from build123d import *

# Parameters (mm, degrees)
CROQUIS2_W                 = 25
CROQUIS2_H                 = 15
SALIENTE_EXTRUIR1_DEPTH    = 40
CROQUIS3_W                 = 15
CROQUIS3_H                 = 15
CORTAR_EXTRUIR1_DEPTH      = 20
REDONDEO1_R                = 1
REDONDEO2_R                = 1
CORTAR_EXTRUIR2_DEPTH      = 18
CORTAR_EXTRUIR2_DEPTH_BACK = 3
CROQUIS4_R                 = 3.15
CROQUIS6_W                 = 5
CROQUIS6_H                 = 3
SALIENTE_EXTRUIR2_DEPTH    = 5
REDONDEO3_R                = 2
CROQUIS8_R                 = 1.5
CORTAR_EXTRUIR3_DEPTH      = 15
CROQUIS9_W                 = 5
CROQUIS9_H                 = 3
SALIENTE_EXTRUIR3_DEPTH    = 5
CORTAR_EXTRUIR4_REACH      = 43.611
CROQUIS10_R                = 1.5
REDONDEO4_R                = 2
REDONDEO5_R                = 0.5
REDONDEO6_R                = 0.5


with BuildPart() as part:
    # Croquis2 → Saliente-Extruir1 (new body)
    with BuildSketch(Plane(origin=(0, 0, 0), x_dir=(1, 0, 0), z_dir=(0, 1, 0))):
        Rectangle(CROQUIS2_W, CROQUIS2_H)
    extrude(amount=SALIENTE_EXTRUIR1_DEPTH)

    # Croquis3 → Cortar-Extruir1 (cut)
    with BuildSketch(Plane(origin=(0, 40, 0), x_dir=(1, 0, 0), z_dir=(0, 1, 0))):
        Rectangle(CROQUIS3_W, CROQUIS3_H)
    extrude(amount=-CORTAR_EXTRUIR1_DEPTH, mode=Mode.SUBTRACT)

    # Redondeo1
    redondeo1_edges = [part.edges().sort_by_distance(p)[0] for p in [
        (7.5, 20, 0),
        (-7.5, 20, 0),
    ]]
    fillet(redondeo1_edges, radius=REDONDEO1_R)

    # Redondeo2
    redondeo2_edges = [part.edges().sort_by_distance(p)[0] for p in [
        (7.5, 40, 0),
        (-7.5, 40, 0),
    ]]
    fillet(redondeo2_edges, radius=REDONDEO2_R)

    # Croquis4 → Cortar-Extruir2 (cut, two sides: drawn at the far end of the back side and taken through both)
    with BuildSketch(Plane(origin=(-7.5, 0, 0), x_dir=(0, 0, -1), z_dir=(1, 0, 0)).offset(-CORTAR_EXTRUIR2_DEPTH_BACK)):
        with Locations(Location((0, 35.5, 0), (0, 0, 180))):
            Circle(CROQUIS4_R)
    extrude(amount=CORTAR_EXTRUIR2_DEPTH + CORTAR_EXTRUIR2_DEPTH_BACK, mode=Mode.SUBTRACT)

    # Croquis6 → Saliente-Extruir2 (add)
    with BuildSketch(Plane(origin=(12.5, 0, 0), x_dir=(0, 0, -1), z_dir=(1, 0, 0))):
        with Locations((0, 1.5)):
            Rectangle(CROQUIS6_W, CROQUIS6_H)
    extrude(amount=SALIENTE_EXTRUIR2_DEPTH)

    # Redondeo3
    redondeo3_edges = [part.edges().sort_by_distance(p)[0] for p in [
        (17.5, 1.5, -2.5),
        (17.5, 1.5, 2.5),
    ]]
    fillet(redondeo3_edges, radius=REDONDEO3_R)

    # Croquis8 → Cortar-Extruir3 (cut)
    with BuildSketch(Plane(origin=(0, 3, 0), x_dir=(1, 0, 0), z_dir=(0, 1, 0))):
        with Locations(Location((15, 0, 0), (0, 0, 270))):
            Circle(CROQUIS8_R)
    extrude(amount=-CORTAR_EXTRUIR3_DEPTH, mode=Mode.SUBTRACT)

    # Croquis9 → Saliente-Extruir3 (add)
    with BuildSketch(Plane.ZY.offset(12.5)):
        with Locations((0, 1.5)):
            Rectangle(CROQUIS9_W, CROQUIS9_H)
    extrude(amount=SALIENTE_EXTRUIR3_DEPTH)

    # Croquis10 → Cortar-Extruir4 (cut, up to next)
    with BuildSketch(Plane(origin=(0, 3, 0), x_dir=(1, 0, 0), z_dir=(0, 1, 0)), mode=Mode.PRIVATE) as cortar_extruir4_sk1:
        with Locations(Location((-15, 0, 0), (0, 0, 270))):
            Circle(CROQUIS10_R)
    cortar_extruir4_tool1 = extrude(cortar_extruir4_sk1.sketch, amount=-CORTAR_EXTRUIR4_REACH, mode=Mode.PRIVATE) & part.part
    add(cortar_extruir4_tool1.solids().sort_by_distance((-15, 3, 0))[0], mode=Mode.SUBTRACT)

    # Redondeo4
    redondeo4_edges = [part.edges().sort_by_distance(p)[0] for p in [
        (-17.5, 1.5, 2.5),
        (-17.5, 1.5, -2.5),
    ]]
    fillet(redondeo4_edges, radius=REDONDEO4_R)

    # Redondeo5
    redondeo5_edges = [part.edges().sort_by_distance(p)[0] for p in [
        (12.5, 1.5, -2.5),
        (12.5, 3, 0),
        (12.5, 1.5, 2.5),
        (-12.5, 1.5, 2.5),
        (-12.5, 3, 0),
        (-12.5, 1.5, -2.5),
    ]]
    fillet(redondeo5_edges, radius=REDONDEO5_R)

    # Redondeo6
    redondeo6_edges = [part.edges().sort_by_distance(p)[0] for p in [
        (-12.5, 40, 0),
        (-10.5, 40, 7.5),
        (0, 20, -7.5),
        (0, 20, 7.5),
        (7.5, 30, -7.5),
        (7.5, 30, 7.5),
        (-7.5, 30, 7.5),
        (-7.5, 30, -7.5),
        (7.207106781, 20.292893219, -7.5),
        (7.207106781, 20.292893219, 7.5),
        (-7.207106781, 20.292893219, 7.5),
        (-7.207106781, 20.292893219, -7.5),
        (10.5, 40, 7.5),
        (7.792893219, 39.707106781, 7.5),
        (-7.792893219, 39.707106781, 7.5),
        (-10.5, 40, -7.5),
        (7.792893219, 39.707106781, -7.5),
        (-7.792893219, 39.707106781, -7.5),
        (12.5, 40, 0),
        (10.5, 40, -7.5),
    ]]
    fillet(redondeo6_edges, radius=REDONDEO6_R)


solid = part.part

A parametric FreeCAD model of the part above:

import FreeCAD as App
import Part
import Sketcher


def edges_at(feature, points):
    """Names of the edges that pass closest to the given points."""
    edges = feature.Shape.Edges
    near = lambda p: min(range(len(edges)), key=lambda i: edges[i].distToShape(Part.Vertex(*p))[0])
    return sorted({f"Edge{near(p) + 1}" for p in points})


def add_polygon(sketch, points):
    """Adds a closed chain of lines whose ends are joined by coincident constraints."""
    first, n = sketch.GeometryCount, len(points)
    for a, b in zip(points, points[1:] + points[:1]):
        sketch.addGeometry(Part.LineSegment(App.Vector(*a, 0), App.Vector(*b, 0)), False)
    for i in range(n):
        sketch.addConstraint(Sketcher.Constraint("Coincident", first + i, 2, first + (i + 1) % n, 1))

doc = App.newDocument("Part")
body = doc.addObject("PartDesign::Body", "Body")

# Sketch on XZ plane
sketch1 = body.newObject("Sketcher::SketchObject", "Sketch")
sketch1.AttachmentSupport = (doc.getObject("XZ_Plane"), [""])
sketch1.MapMode = "FlatFace"
add_polygon(sketch1, [(-12, -8), (-12, 8), (12, 8), (12, -8)])  # lines 0-3
sketch1.addConstraint(Sketcher.Constraint("Vertical", 0))
sketch1.addConstraint(Sketcher.Constraint("Horizontal", 1))
sketch1.addConstraint(Sketcher.Constraint("Vertical", 2))
sketch1.addConstraint(Sketcher.Constraint("Horizontal", 3))
sketch1.addConstraint(Sketcher.Constraint("Symmetric", 0, 2, 2, 2, -1, 1))
sketch1.addConstraint(Sketcher.Constraint("DistanceX", 1, 1, 1, 2, 25.0))
sketch1.addConstraint(Sketcher.Constraint("DistanceY", 0, 1, 0, 2, 15.0))
pad1 = body.newObject("PartDesign::Pad", "Pad")
pad1.Profile = sketch1
pad1.Length = 40
pad1.Reversed = True

# Sketch on XZ plane
sketch2 = body.newObject("Sketcher::SketchObject", "Sketch001")
sketch2.AttachmentSupport = (doc.getObject("XZ_Plane"), [""])
sketch2.MapMode = "FlatFace"
sketch2.AttachmentOffset = App.Placement(App.Vector(0, 0, -40), App.Rotation())
add_polygon(sketch2, [(-8, -8), (-8, 8), (8, 8), (8, -8)])  # lines 0-3
sketch2.addConstraint(Sketcher.Constraint("Vertical", 0))
sketch2.addConstraint(Sketcher.Constraint("Horizontal", 1))
sketch2.addConstraint(Sketcher.Constraint("Vertical", 2))
sketch2.addConstraint(Sketcher.Constraint("Horizontal", 3))
sketch2.addConstraint(Sketcher.Constraint("Symmetric", 0, 2, 2, 2, -1, 1))
sketch2.addConstraint(Sketcher.Constraint("Equal", 3, 0))
sketch2.addConstraint(Sketcher.Constraint("DistanceX", 1, 1, 1, 2, 15.0))
pocket1 = body.newObject("PartDesign::Pocket", "Pocket")
pocket1.Profile = sketch2
pocket1.Length = 20
pocket1.Reversed = True
doc.recompute()

fillet = body.newObject("PartDesign::Fillet", "Fillet")
fillet.Base = (pocket1, edges_at(pocket1, [(7.5, 20, 0), (-7.5, 20, 0)]))
fillet.Radius = 1
doc.recompute()

fillet2 = body.newObject("PartDesign::Fillet", "Fillet001")
fillet2.Base = (fillet, edges_at(fillet, [(7.5, 40, 0), (-7.5, 40, 0)]))
fillet2.Radius = 1

# Sketch on YZ plane
sketch3 = body.newObject("Sketcher::SketchObject", "Sketch002")
sketch3.AttachmentSupport = (doc.getObject("YZ_Plane"), [""])
sketch3.MapMode = "FlatFace"
sketch3.AttachmentOffset = App.Placement(App.Vector(0, 0, -7.5), App.Rotation())
sketch3.addGeometry(Part.Circle(App.Vector(35.5, 0, 0), App.Vector(0, 0, 1), 3.1), False)
sketch3.addConstraint(Sketcher.Constraint("PointOnObject", 0, 3, -1))
sketch3.addConstraint(Sketcher.Constraint("Diameter", 0, 6.3))
sketch3.addConstraint(Sketcher.Constraint("DistanceX", -1, 1, 0, 3, 35.5))
pocket2 = body.newObject("PartDesign::Pocket", "Pocket001")
pocket2.Profile = sketch3
pocket2.Type = "TwoLengths"
pocket2.Length = 18
pocket2.Length2 = 3
pocket2.Reversed = True

# Sketch on YZ plane
sketch4 = body.newObject("Sketcher::SketchObject", "Sketch003")
sketch4.AttachmentSupport = (doc.getObject("YZ_Plane"), [""])
sketch4.MapMode = "FlatFace"
sketch4.AttachmentOffset = App.Placement(App.Vector(0, 0, 12.5), App.Rotation())
add_polygon(sketch4, [(3, 2.5), (0, 2.5), (0, -2.5), (3, -2.5)])  # lines 0-3
sketch4.addConstraint(Sketcher.Constraint("Horizontal", 0))
sketch4.addConstraint(Sketcher.Constraint("Vertical", 1))
sketch4.addConstraint(Sketcher.Constraint("Horizontal", 2))
sketch4.addConstraint(Sketcher.Constraint("Vertical", 3))
sketch4.addConstraint(Sketcher.Constraint("Symmetric", 0, 2, 1, 2, -1, 1))
sketch4.addConstraint(Sketcher.Constraint("DistanceX", 0, 2, 0, 1, 3.0))
sketch4.addConstraint(Sketcher.Constraint("DistanceY", 1, 2, 1, 1, 5.0))
pad2 = body.newObject("PartDesign::Pad", "Pad001")
pad2.Profile = sketch4
pad2.Length = 5
doc.recompute()

fillet3 = body.newObject("PartDesign::Fillet", "Fillet002")
fillet3.Base = (pad2, edges_at(pad2, [(17.5, 1.5, -2.5), (17.5, 1.5, 2.5)]))
fillet3.Radius = 2

# Sketch on XZ plane
sketch5 = body.newObject("Sketcher::SketchObject", "Sketch004")
sketch5.AttachmentSupport = (doc.getObject("XZ_Plane"), [""])
sketch5.MapMode = "FlatFace"
sketch5.AttachmentOffset = App.Placement(App.Vector(0, 0, -3), App.Rotation())
sketch5.addGeometry(Part.Circle(App.Vector(15, 0, 0), App.Vector(0, 0, 1), 1.5), False)
sketch5.addConstraint(Sketcher.Constraint("PointOnObject", 0, 3, -1))
sketch5.addConstraint(Sketcher.Constraint("Diameter", 0, 3.0))
sketch5.addConstraint(Sketcher.Constraint("DistanceX", -1, 1, 0, 3, 15.0))
pocket3 = body.newObject("PartDesign::Pocket", "Pocket002")
pocket3.Profile = sketch5
pocket3.Length = 15
pocket3.Reversed = True

# Sketch on YZ plane
sketch6 = body.newObject("Sketcher::SketchObject", "Sketch005")
sketch6.AttachmentSupport = (doc.getObject("YZ_Plane"), [""])
sketch6.MapMode = "FlatFace"
sketch6.AttachmentOffset = App.Placement(App.Vector(0, 0, -12.5), App.Rotation())
add_polygon(sketch6, [(3, -2.5), (0, -2.5), (0, 2.5), (3, 2.5)])  # lines 0-3
sketch6.addConstraint(Sketcher.Constraint("Horizontal", 0))
sketch6.addConstraint(Sketcher.Constraint("Vertical", 1))
sketch6.addConstraint(Sketcher.Constraint("Horizontal", 2))
sketch6.addConstraint(Sketcher.Constraint("Vertical", 3))
sketch6.addConstraint(Sketcher.Constraint("Symmetric", 0, 2, 1, 2, -1, 1))
sketch6.addConstraint(Sketcher.Constraint("DistanceX", 0, 2, 0, 1, 3.0))
sketch6.addConstraint(Sketcher.Constraint("DistanceY", 1, 1, 1, 2, 5.0))
pad3 = body.newObject("PartDesign::Pad", "Pad002")
pad3.Profile = sketch6
pad3.Length = 5
pad3.Reversed = True

# Sketch on XZ plane
sketch7 = body.newObject("Sketcher::SketchObject", "Sketch006")
sketch7.AttachmentSupport = (doc.getObject("XZ_Plane"), [""])
sketch7.MapMode = "FlatFace"
sketch7.AttachmentOffset = App.Placement(App.Vector(0, 0, -3), App.Rotation())
sketch7.addGeometry(Part.Circle(App.Vector(-15, 0, 0), App.Vector(0, 0, 1), 1.5), False)
sketch7.addConstraint(Sketcher.Constraint("PointOnObject", 0, 3, -1))
sketch7.addConstraint(Sketcher.Constraint("Diameter", 0, 3.0))
sketch7.addConstraint(Sketcher.Constraint("DistanceX", 0, 3, -1, 1, 15.0))
pocket4 = body.newObject("PartDesign::Pocket", "Pocket003")
pocket4.Profile = sketch7
pocket4.Type = "UpToFirst"
pocket4.Reversed = True
doc.recompute()

fillet4 = body.newObject("PartDesign::Fillet", "Fillet003")
fillet4.Base = (pocket4, edges_at(pocket4, [(-17.5, 1.5, 2.5), (-17.5, 1.5, -2.5)]))
fillet4.Radius = 2
doc.recompute()

fillet5 = body.newObject("PartDesign::Fillet", "Fillet004")
fillet5.Base = (fillet4, edges_at(fillet4, [
    (12.5, 1.5, -2.5),
    (12.5, 3, 0),
    (12.5, 1.5, 2.5),
    (-12.5, 1.5, 2.5),
    (-12.5, 3, 0),
    (-12.5, 1.5, -2.5),
]))
fillet5.Radius = 0.5
doc.recompute()

fillet6 = body.newObject("PartDesign::Fillet", "Fillet005")
fillet6.Base = (fillet5, edges_at(fillet5, [
    (-12.5, 40, 0),
    (-10.5, 40, 7.5),
    (0, 20, -7.5),
    (0, 20, 7.5),
    (7.5, 30, -7.5),
    (7.5, 30, 7.5),
    (-7.5, 30, 7.5),
    (-7.5, 30, -7.5),
    (7.207, 20.293, -7.5),
    (7.207, 20.293, 7.5),
    (-7.207, 20.293, 7.5),
    (-7.207, 20.293, -7.5),
    (10.5, 40, 7.5),
    (7.793, 39.707, 7.5),
    (-7.793, 39.707, 7.5),
    (-10.5, 40, -7.5),
    (7.793, 39.707, -7.5),
    (-7.793, 39.707, -7.5),
    (12.5, 40, 0),
    (10.5, 40, -7.5),
]))
fillet6.Radius = 0.5

doc.recompute()
